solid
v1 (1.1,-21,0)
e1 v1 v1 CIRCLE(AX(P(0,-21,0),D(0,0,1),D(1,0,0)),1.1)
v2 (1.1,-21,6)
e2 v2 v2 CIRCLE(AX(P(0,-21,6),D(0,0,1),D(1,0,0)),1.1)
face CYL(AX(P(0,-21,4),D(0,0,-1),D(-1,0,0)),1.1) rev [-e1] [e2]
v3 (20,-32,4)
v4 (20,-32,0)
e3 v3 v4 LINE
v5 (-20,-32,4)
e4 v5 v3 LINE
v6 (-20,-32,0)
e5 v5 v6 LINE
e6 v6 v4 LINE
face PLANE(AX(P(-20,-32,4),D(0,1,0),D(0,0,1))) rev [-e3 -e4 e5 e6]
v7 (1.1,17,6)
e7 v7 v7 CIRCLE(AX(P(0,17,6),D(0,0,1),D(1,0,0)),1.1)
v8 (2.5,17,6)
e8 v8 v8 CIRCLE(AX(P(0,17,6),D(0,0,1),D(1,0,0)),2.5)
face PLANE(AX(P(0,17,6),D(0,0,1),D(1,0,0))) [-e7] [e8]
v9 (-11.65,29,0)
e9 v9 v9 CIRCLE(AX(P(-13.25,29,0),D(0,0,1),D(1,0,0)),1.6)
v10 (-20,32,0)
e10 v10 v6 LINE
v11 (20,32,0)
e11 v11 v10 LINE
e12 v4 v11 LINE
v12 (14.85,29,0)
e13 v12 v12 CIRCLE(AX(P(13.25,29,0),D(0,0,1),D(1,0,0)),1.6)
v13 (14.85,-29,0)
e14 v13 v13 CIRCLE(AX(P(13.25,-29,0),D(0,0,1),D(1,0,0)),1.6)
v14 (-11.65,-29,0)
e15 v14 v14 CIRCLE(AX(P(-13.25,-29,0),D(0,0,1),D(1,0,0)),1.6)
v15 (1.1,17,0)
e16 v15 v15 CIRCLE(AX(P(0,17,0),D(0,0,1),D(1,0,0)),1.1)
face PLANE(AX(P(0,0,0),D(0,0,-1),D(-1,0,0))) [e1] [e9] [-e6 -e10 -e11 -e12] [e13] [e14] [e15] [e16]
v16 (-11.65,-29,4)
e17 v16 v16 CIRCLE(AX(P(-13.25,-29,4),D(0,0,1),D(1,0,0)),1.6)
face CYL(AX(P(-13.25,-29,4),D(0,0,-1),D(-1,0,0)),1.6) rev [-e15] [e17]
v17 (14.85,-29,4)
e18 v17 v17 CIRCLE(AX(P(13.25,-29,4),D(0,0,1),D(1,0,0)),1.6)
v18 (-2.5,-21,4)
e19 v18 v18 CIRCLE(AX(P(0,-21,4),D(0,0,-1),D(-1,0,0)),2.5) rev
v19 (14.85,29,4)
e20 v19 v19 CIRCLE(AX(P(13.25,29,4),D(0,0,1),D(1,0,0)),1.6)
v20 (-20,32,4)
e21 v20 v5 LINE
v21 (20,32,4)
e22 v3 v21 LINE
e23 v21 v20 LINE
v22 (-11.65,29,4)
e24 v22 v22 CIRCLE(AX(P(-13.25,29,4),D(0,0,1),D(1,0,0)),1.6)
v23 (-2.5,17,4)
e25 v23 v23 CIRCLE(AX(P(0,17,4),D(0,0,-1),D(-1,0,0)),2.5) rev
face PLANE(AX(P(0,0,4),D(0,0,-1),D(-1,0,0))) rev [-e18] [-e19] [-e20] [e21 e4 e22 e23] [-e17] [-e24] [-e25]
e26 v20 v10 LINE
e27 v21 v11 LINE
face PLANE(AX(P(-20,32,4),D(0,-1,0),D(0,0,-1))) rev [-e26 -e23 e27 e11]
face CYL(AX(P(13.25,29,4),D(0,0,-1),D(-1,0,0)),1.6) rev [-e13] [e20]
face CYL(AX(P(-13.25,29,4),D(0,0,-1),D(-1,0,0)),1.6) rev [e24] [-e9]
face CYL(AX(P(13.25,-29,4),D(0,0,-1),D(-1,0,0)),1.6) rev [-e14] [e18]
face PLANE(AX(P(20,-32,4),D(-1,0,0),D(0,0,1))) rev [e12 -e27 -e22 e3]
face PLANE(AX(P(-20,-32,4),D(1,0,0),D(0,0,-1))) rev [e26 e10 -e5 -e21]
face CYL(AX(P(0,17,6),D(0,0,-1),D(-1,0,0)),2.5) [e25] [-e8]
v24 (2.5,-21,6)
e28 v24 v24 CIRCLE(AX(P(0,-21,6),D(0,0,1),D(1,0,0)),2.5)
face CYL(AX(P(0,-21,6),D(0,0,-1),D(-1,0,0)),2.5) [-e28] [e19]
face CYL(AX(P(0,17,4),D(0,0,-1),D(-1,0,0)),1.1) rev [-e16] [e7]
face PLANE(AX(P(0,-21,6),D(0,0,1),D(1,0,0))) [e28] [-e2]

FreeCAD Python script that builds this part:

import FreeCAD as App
import Part
import Sketcher

doc = App.newDocument("Part")
body = doc.addObject("PartDesign::Body", "Body")

# Sketch on XY plane
sketch1 = doc.addObject("Sketcher::SketchObject", "Sketch")
body.addObject(sketch1)
sketch1.AttachmentSupport = (doc.XY_Plane, [""])
sketch1.MapMode = "FlatFace"
sketch1.addGeometry([
    Part.LineSegment(App.Vector(-20, 32, 0), App.Vector(-20, -32, 0)),  # 0
    Part.LineSegment(App.Vector(-20, -32, 0), App.Vector(20, -32, 0)),  # 1
    Part.LineSegment(App.Vector(20, -32, 0), App.Vector(20, 32, 0)),  # 2
    Part.LineSegment(App.Vector(20, 32, 0), App.Vector(-20, 32, 0)),  # 3
    Part.Circle(App.Vector(-13.2, -29, 0), App.Vector(0, 0, 1), 1.6),  # 4
    Part.Circle(App.Vector(0, -21, 0), App.Vector(0, 0, 1), 1.1),  # 5
    Part.Circle(App.Vector(13.2, -29, 0), App.Vector(0, 0, 1), 1.6),  # 6
    Part.Circle(App.Vector(-13.2, 29, 0), App.Vector(0, 0, 1), 1.6),  # 7
    Part.Circle(App.Vector(0, 17, 0), App.Vector(0, 0, 1), 1.1),  # 8
    Part.Circle(App.Vector(13.2, 29, 0), App.Vector(0, 0, 1), 1.6),  # 9
], False)
sketch1.addConstraint([
    Sketcher.Constraint("Coincident", 0, 2, 1, 1),
    Sketcher.Constraint("Coincident", 1, 2, 2, 1),
    Sketcher.Constraint("Coincident", 2, 2, 3, 1),
    Sketcher.Constraint("Coincident", 3, 2, 0, 1),
    Sketcher.Constraint("Vertical", 0),
    Sketcher.Constraint("Horizontal", 1),
    Sketcher.Constraint("Vertical", 2),
    Sketcher.Constraint("Horizontal", 3),
    Sketcher.Constraint("Equal", 4, 6),
    Sketcher.Constraint("Equal", 6, 7),
    Sketcher.Constraint("Equal", 5, 8),
    Sketcher.Constraint("Equal", 7, 9),
    Sketcher.Constraint("Symmetric", 6, 3, 7, 3, -1, 1),
    Sketcher.Constraint("Symmetric", 4, 3, 9, 3, -1, 1),
    Sketcher.Constraint("Symmetric", 0, 2, 2, 2, -1, 1),
    Sketcher.Constraint("Symmetric", 4, 3, 6, 3, -2),
    Sketcher.Constraint("PointOnObject", 5, 3, -2),
    Sketcher.Constraint("PointOnObject", 8, 3, -2),
    Sketcher.Constraint("Diameter", 4, 3.2),
    Sketcher.Constraint("Diameter", 5, 2.2),
    Sketcher.Constraint("DistanceX", 1, 1, 1, 2, 40.0),
    Sketcher.Constraint("DistanceY", 0, 2, 0, 1, 64.0),
    Sketcher.Constraint("DistanceY", 4, 3, -1, 1, 29.0),
    Sketcher.Constraint("DistanceY", 5, 3, -1, 1, 21.0),
    Sketcher.Constraint("DistanceY", -1, 1, 8, 3, 17.0),
    Sketcher.Constraint("DistanceX", 4, 3, 6, 3, 26.5),
])
pad1 = doc.addObject("PartDesign::Pad", "Pad")
body.addObject(pad1)
pad1.Profile = sketch1
pad1.Length = 4

# Sketch on XY plane
sketch2 = doc.addObject("Sketcher::SketchObject", "Sketch001")
body.addObject(sketch2)
sketch2.AttachmentSupport = (doc.XY_Plane, [""])
sketch2.MapMode = "FlatFace"
sketch2.AttachmentOffset = App.Placement(App.Vector(0, 0, 4), App.Rotation())
sketch2.addGeometry([
    Part.Circle(App.Vector(0, 17, 0), App.Vector(0, 0, 1), 2.5),
    Part.Circle(App.Vector(0, 17, 0), App.Vector(0, 0, 1), 1.1),
    Part.Circle(App.Vector(0, -21, 0), App.Vector(0, 0, 1), 2.5),
    Part.Circle(App.Vector(0, -21, 0), App.Vector(0, 0, 1), 1.1),
], False)
sketch2.addConstraint([
    Sketcher.Constraint("Coincident", 1, 3, 0, 3),
    Sketcher.Constraint("Coincident", 3, 3, 2, 3),
    Sketcher.Constraint("Equal", 0, 2),
    Sketcher.Constraint("Equal", 1, 3),
    Sketcher.Constraint("PointOnObject", 0, 3, -2),
    Sketcher.Constraint("PointOnObject", 2, 3, -2),
    Sketcher.Constraint("Diameter", 0, 5.0),
    Sketcher.Constraint("Diameter", 1, 2.2),
    Sketcher.Constraint("DistanceY", -1, 1, 0, 3, 17.0),
    Sketcher.Constraint("DistanceY", 2, 3, -1, 1, 21.0),
])
pad2 = doc.addObject("PartDesign::Pad", "Pad001")
body.addObject(pad2)
pad2.Profile = sketch2
pad2.Length = 2

doc.recompute()
